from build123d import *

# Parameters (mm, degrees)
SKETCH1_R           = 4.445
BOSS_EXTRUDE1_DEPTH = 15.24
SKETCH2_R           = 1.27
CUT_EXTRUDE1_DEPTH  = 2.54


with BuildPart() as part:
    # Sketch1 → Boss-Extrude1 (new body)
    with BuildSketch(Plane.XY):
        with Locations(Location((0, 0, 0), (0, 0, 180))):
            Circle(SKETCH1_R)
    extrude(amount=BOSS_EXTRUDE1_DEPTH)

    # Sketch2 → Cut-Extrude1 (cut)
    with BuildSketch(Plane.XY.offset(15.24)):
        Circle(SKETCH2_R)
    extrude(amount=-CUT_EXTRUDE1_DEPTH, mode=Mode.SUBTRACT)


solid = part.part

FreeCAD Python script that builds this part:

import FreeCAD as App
import Part
import Sketcher

V = App.Vector
Q = App.Units.Quantity

doc = App.newDocument("Part")
body = doc.addObject("PartDesign::Body", "Body")

# Sketch on XY plane
sketch1 = doc.addObject("Sketcher::SketchObject", "Sketch")
body.addObject(sketch1)
sketch1.AttachmentSupport = (doc.XY_Plane, [""])
sketch1.MapMode = "FlatFace"
sketch1.addGeometry(Part.Circle(V(0, 0, 0), V(0, 0, 1), 4.445), False)
sketch1.addConstraint(Sketcher.Constraint("Coincident", 0, 3, -1, 1))
sketch1.addConstraint(Sketcher.Constraint("Diameter", 0, Q("0.35 in")))
pad1 = doc.addObject("PartDesign::Pad", "Pad")
body.addObject(pad1)
pad1.Profile = sketch1
pad1.Length = Q("0.6 in")

# Sketch on XY plane
sketch2 = doc.addObject("Sketcher::SketchObject", "Sketch001")
body.addObject(sketch2)
sketch2.AttachmentSupport = (doc.XY_Plane, [""])
sketch2.MapMode = "FlatFace"
sketch2.AttachmentOffset = App.Placement(V(0, 0, 0.6 * 25.4), App.Rotation())
sketch2.addGeometry(Part.Circle(V(0, 0, 0), V(0, 0, 1), 1.27), False)
sketch2.addConstraint(Sketcher.Constraint("Coincident", 0, 3, -1, 1))
sketch2.addConstraint(Sketcher.Constraint("Diameter", 0, Q("0.1 in")))
pocket1 = doc.addObject("PartDesign::Pocket", "Pocket")
body.addObject(pocket1)
pocket1.Profile = sketch2
pocket1.Length = Q("0.1 in")

doc.recompute()
